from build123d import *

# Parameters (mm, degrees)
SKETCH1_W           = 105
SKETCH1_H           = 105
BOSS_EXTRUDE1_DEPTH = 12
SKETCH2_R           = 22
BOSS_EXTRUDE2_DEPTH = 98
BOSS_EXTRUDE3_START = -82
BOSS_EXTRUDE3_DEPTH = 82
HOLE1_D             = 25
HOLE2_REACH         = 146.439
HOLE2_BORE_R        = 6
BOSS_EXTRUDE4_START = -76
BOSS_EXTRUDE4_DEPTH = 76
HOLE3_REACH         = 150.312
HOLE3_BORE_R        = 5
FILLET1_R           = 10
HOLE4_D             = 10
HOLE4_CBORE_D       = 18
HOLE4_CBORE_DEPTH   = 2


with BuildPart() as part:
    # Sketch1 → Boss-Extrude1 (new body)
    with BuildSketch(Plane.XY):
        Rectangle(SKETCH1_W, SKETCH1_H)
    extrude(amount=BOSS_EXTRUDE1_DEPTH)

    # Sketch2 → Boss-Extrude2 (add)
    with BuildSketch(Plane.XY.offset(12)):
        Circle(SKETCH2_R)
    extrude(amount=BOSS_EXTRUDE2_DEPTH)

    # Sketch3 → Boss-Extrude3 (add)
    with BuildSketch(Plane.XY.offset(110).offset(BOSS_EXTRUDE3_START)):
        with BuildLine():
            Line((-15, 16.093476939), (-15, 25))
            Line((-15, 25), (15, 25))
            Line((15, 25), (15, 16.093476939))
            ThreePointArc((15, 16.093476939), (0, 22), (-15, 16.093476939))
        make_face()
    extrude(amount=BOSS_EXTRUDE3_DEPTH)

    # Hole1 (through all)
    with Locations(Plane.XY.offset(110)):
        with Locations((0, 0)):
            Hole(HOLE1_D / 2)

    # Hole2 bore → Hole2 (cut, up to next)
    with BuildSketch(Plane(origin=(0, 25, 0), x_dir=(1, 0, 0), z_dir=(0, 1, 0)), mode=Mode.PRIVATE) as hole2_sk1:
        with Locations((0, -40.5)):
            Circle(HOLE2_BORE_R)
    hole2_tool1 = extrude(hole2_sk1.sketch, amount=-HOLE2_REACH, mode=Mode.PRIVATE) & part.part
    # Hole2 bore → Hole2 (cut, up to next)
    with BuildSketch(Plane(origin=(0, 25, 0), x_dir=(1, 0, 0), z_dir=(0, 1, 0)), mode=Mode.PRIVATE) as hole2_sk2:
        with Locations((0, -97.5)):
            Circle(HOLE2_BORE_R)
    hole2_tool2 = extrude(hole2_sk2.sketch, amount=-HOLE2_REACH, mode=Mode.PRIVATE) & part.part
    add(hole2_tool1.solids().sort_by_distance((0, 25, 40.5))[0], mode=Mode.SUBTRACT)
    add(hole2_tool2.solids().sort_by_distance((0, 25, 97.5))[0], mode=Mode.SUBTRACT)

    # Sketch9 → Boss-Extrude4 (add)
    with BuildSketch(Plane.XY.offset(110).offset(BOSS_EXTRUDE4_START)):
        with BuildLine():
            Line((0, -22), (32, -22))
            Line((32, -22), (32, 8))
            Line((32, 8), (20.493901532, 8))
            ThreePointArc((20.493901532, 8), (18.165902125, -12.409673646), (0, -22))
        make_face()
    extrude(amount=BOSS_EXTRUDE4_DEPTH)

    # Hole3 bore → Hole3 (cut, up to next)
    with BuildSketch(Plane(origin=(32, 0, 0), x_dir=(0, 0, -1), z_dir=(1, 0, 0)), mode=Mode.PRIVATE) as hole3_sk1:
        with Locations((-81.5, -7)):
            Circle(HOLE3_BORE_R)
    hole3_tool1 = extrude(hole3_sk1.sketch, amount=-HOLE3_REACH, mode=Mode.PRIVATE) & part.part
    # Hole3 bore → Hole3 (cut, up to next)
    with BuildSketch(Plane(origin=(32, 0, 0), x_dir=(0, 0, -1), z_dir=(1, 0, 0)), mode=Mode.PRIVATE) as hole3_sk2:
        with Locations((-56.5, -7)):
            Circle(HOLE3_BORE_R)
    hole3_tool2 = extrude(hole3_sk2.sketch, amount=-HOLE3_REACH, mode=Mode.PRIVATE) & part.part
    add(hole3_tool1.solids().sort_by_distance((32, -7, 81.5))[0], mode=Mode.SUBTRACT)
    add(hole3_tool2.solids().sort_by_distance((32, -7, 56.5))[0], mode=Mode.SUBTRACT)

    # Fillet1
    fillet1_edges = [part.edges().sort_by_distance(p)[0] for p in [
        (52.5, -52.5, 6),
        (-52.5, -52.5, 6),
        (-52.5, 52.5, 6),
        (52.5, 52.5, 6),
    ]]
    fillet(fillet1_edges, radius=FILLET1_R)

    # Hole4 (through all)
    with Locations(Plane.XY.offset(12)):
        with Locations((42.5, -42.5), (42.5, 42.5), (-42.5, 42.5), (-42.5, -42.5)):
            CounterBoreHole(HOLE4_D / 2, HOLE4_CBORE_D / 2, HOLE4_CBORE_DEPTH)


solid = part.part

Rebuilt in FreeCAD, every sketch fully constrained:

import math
import FreeCAD as App
import Part
import Sketcher

V = App.Vector


def edges_at(feature, points):
    """Names of the edges that pass closest to the given points."""
    edges = feature.Shape.Edges
    near = lambda p: min(range(len(edges)), key=lambda i: edges[i].distToShape(Part.Vertex(*p))[0])
    return sorted({f"Edge{near(p) + 1}" for p in points})


def add_polygon(sketch, points):
    """Adds a closed chain of lines whose ends are joined by coincident constraints."""
    first, n = sketch.GeometryCount, len(points)
    for a, b in zip(points, points[1:] + points[:1]):
        sketch.addGeometry(Part.LineSegment(App.Vector(*a, 0), App.Vector(*b, 0)), False)
    for i in range(n):
        sketch.addConstraint(Sketcher.Constraint("Coincident", first + i, 2, first + (i + 1) % n, 1))

doc = App.newDocument("Part")
params = doc.addObject("Spreadsheet::Sheet", "Params")
for row, (alias, value) in enumerate([
    ("sketch1_width", "105 mm"),
    ("pad1_length", "12 mm"),
    ("sketch2_diameter", "44 mm"),
    ("pad2_length", "98 mm"),
    ("sketch3_radius", "22 mm"),
    ("sketch3_width", "30 mm"),
    ("pad3_length", "82 mm"),
    ("sketch4_diameter", "25 mm"),
    ("hole_diameter", "25 mm"),
    ("sketch5_diameter", "12 mm"),
    ("sketch6_diameter", "12 mm"),
    ("sketch7_radius", "22 mm"),
    ("sketch7_width", "32 mm"),
    ("sketch7_height", "30 mm"),
    ("pad4_length", "76 mm"),
    ("sketch8_diameter", "10 mm"),
    ("sketch9_diameter", "10 mm"),
    ("fillet_radius", "10 mm"),
    ("sketch10_diameter", "10 mm"),
    ("hole2_diameter", "10 mm"),
    ("hole2_cbore_diameter", "18 mm"),
    ("hole2_cbore_depth", "2 mm"),
], start=1):
    params.set(f"A{row}", alias)
    params.set(f"B{row}", "=" + value)
    params.setAlias(f"B{row}", alias)

body = doc.addObject("PartDesign::Body", "Body")

# Sketch on XY plane
sketch1 = body.newObject("Sketcher::SketchObject", "Sketch")
sketch1.AttachmentSupport = (doc.getObject("XY_Plane"), [""])
sketch1.MapMode = "FlatFace"
add_polygon(sketch1, [(-52.5, 52.5), (-52.5, -52.5), (52.5, -52.5), (52.5, 52.5)])  # lines 0-3
sketch1.addConstraint(Sketcher.Constraint("Vertical", 0))
sketch1.addConstraint(Sketcher.Constraint("Horizontal", 1))
sketch1.addConstraint(Sketcher.Constraint("Vertical", 2))
sketch1.addConstraint(Sketcher.Constraint("Horizontal", 3))
sketch1.addConstraint(Sketcher.Constraint("Symmetric", 0, 2, 2, 2, -1, 1))
sketch1.addConstraint(Sketcher.Constraint("Equal", 3, 0))
sketch1.addConstraint(Sketcher.Constraint("DistanceX", 1, 1, 1, 2, 105.0))
sketch1.setExpression("Constraints[10]", "Params.sketch1_width")
pad1 = body.newObject("PartDesign::Pad", "Pad")
pad1.Profile = sketch1
pad1.setExpression("Length", "Params.pad1_length")

# Sketch on XY plane
sketch2 = body.newObject("Sketcher::SketchObject", "Sketch001")
sketch2.AttachmentSupport = (doc.getObject("XY_Plane"), [""])
sketch2.MapMode = "FlatFace"
sketch2.AttachmentOffset = App.Placement(V(0, 0, 12), App.Rotation())
sketch2.addGeometry(Part.Circle(V(0, 0, 0), V(0, 0, 1), 22), False)
sketch2.addConstraint(Sketcher.Constraint("Coincident", 0, 3, -1, 1))
sketch2.addConstraint(Sketcher.Constraint("Diameter", 0, 44.0))
sketch2.setExpression("Constraints[1]", "Params.sketch2_diameter")
pad2 = body.newObject("PartDesign::Pad", "Pad001")
pad2.Profile = sketch2
pad2.setExpression("Length", "Params.pad2_length")

# Sketch on XY plane
sketch3 = body.newObject("Sketcher::SketchObject", "Sketch002")
sketch3.AttachmentSupport = (doc.getObject("XY_Plane"), [""])
sketch3.MapMode = "FlatFace"
sketch3.AttachmentOffset = App.Placement(V(0, 0, 28), App.Rotation())
sketch3.addGeometry(Part.LineSegment(V(-15, 25, 0), V(-15, 16.093477, 0)), False)
sketch3.addGeometry(Part.ArcOfCircle(Part.Circle(V(0, 0, 0), V(0, 0, 1), 22), math.radians(47.014114), math.radians(132.985886)), False)
sketch3.addGeometry(Part.LineSegment(V(15, 16.093477, 0), V(15, 25, 0)), False)
sketch3.addGeometry(Part.LineSegment(V(15, 25, 0), V(-15, 25, 0)), False)
sketch3.addConstraint(Sketcher.Constraint("Coincident", 0, 2, 1, 2))
sketch3.addConstraint(Sketcher.Constraint("Coincident", 1, 1, 2, 1))
sketch3.addConstraint(Sketcher.Constraint("Coincident", 2, 2, 3, 1))
sketch3.addConstraint(Sketcher.Constraint("Coincident", 3, 2, 0, 1))
sketch3.addConstraint(Sketcher.Constraint("Vertical", 0))
sketch3.addConstraint(Sketcher.Constraint("Vertical", 2))
sketch3.addConstraint(Sketcher.Constraint("Horizontal", 3))
sketch3.addConstraint(Sketcher.Constraint("Coincident", 1, 3, -1, 1))
sketch3.addConstraint(Sketcher.Constraint("Horizontal", 0, 2, 1, 1))
sketch3.addConstraint(Sketcher.Constraint("Radius", 1, 22.0))
sketch3.addConstraint(Sketcher.Constraint("DistanceX", 3, 2, 3, 1, 30.0))
sketch3.addConstraint(Sketcher.Constraint("DistanceY", -1, 1, 2, 2, 25.0))
sketch3.setExpression("Constraints[9]", "Params.sketch3_radius")
sketch3.setExpression("Constraints[10]", "Params.sketch3_width")
pad3 = body.newObject("PartDesign::Pad", "Pad002")
pad3.Profile = sketch3
pad3.setExpression("Length", "Params.pad3_length")

# Sketch on XY plane
sketch4 = body.newObject("Sketcher::SketchObject", "Sketch003")
sketch4.AttachmentSupport = (doc.getObject("XY_Plane"), [""])
sketch4.MapMode = "FlatFace"
sketch4.AttachmentOffset = App.Placement(V(0, 0, 110), App.Rotation())
sketch4.addGeometry(Part.Circle(V(0, 0, 0), V(0, 0, 1), 12.5), False)
sketch4.addConstraint(Sketcher.Constraint("Coincident", 0, 3, -1, 1))
sketch4.addConstraint(Sketcher.Constraint("Diameter", 0, 25.0))
sketch4.setExpression("Constraints[1]", "Params.sketch4_diameter")
doc.recompute()
hole = body.newObject("PartDesign::Hole", "Hole")
hole.Profile = sketch4
hole.ThreadType = "None"
hole.setExpression("Diameter", "Params.hole_diameter")
hole.DepthType = "ThroughAll"

# Sketch on XZ plane
sketch5 = body.newObject("Sketcher::SketchObject", "Sketch004")
sketch5.AttachmentSupport = (doc.getObject("XZ_Plane"), [""])
sketch5.MapMode = "FlatFace"
sketch5.AttachmentOffset = App.Placement(V(0, 0, -25), App.Rotation())
sketch5.addGeometry(Part.Circle(V(0, 40.5, 0), V(0, 0, 1), 6), False)
sketch5.addConstraint(Sketcher.Constraint("PointOnObject", 0, 3, -2))
sketch5.addConstraint(Sketcher.Constraint("Diameter", 0, 12.0))
sketch5.addConstraint(Sketcher.Constraint("DistanceY", -1, 1, 0, 3, 40.5))
sketch5.setExpression("Constraints[1]", "Params.sketch5_diameter")
pocket1 = body.newObject("PartDesign::Pocket", "Pocket")
pocket1.Profile = sketch5
pocket1.Type = "UpToFirst"
pocket1.Reversed = True

# Sketch on XZ plane
sketch6 = body.newObject("Sketcher::SketchObject", "Sketch005")
sketch6.AttachmentSupport = (doc.getObject("XZ_Plane"), [""])
sketch6.MapMode = "FlatFace"
sketch6.AttachmentOffset = App.Placement(V(0, 0, -25), App.Rotation())
sketch6.addGeometry(Part.Circle(V(0, 97.5, 0), V(0, 0, 1), 6), False)
sketch6.addConstraint(Sketcher.Constraint("PointOnObject", 0, 3, -2))
sketch6.addConstraint(Sketcher.Constraint("Diameter", 0, 12.0))
sketch6.addConstraint(Sketcher.Constraint("DistanceY", -1, 1, 0, 3, 97.5))
sketch6.setExpression("Constraints[1]", "Params.sketch6_diameter")
pocket2 = body.newObject("PartDesign::Pocket", "Pocket001")
pocket2.Profile = sketch6
pocket2.Type = "UpToFirst"
pocket2.Reversed = True

# Sketch on XY plane
sketch7 = body.newObject("Sketcher::SketchObject", "Sketch006")
sketch7.AttachmentSupport = (doc.getObject("XY_Plane"), [""])
sketch7.MapMode = "FlatFace"
sketch7.AttachmentOffset = App.Placement(V(0, 0, 34), App.Rotation())
sketch7.addGeometry(Part.LineSegment(V(0, -22, 0), V(32, -22, 0)), False)
sketch7.addGeometry(Part.LineSegment(V(32, -22, 0), V(32, 8, 0)), False)
sketch7.addGeometry(Part.LineSegment(V(32, 8, 0), V(20.493902, 8, 0)), False)
sketch7.addGeometry(Part.ArcOfCircle(Part.Circle(V(0, 0, 0), V(0, 0, 1), 22), math.radians(-90), math.radians(21.323686)), False)
sketch7.addConstraint(Sketcher.Constraint("Coincident", 0, 2, 1, 1))
sketch7.addConstraint(Sketcher.Constraint("Coincident", 1, 2, 2, 1))
sketch7.addConstraint(Sketcher.Constraint("Coincident", 2, 2, 3, 2))
sketch7.addConstraint(Sketcher.Constraint("Tangent", 3, 1, 0, 1))
sketch7.addConstraint(Sketcher.Constraint("Horizontal", 0))
sketch7.addConstraint(Sketcher.Constraint("Vertical", 1))
sketch7.addConstraint(Sketcher.Constraint("Horizontal", 2))
sketch7.addConstraint(Sketcher.Constraint("Coincident", 3, 3, -1, 1))
sketch7.addConstraint(Sketcher.Constraint("Radius", 3, 22.0))
sketch7.addConstraint(Sketcher.Constraint("DistanceX", 0, 1, 0, 2, 32.0))
sketch7.addConstraint(Sketcher.Constraint("DistanceY", 1, 1, 1, 2, 30.0))
sketch7.setExpression("Constraints[8]", "Params.sketch7_radius")
sketch7.setExpression("Constraints[9]", "Params.sketch7_width")
sketch7.setExpression("Constraints[10]", "Params.sketch7_height")
pad4 = body.newObject("PartDesign::Pad", "Pad003")
pad4.Profile = sketch7
pad4.setExpression("Length", "Params.pad4_length")

# Sketch on YZ plane
sketch8 = body.newObject("Sketcher::SketchObject", "Sketch007")
sketch8.AttachmentSupport = (doc.getObject("YZ_Plane"), [""])
sketch8.MapMode = "FlatFace"
sketch8.AttachmentOffset = App.Placement(V(0, 0, 32), App.Rotation())
sketch8.addGeometry(Part.Circle(V(-7, 81.5, 0), V(0, 0, 1), 5), False)
sketch8.addConstraint(Sketcher.Constraint("Diameter", 0, 10.0))
sketch8.addConstraint(Sketcher.Constraint("DistanceX", 0, 3, -1, 1, 7.0))
sketch8.addConstraint(Sketcher.Constraint("DistanceY", -1, 1, 0, 3, 81.5))
sketch8.setExpression("Constraints[0]", "Params.sketch8_diameter")
pocket3 = body.newObject("PartDesign::Pocket", "Pocket002")
pocket3.Profile = sketch8
pocket3.Type = "UpToFirst"

# Sketch on YZ plane
sketch9 = body.newObject("Sketcher::SketchObject", "Sketch008")
sketch9.AttachmentSupport = (doc.getObject("YZ_Plane"), [""])
sketch9.MapMode = "FlatFace"
sketch9.AttachmentOffset = App.Placement(V(0, 0, 32), App.Rotation())
sketch9.addGeometry(Part.Circle(V(-7, 56.5, 0), V(0, 0, 1), 5), False)
sketch9.addConstraint(Sketcher.Constraint("Diameter", 0, 10.0))
sketch9.addConstraint(Sketcher.Constraint("DistanceX", 0, 3, -1, 1, 7.0))
sketch9.addConstraint(Sketcher.Constraint("DistanceY", -1, 1, 0, 3, 56.5))
sketch9.setExpression("Constraints[0]", "Params.sketch9_diameter")
pocket4 = body.newObject("PartDesign::Pocket", "Pocket003")
pocket4.Profile = sketch9
pocket4.Type = "UpToFirst"
doc.recompute()

fillet = body.newObject("PartDesign::Fillet", "Fillet")
fillet.Base = (pocket4, edges_at(pocket4, [
    (52.5, -52.5, 6),
    (-52.5, -52.5, 6),
    (-52.5, 52.5, 6),
    (52.5, 52.5, 6),
]))
fillet.setExpression("Radius", "Params.fillet_radius")

# Sketch on XY plane
sketch10 = body.newObject("Sketcher::SketchObject", "Sketch009")
sketch10.AttachmentSupport = (doc.getObject("XY_Plane"), [""])
sketch10.MapMode = "FlatFace"
sketch10.AttachmentOffset = App.Placement(V(0, 0, 12), App.Rotation())
sketch10.addGeometry(Part.Circle(V(42.5, -42.5, 0), V(0, 0, 1), 5), False)
sketch10.addGeometry(Part.Circle(V(42.5, 42.5, 0), V(0, 0, 1), 5), False)
sketch10.addGeometry(Part.Circle(V(-42.5, 42.5, 0), V(0, 0, 1), 5), False)
sketch10.addGeometry(Part.Circle(V(-42.5, -42.5, 0), V(0, 0, 1), 5), False)
sketch10.addConstraint(Sketcher.Constraint("Equal", 0, 1))
sketch10.addConstraint(Sketcher.Constraint("Equal", 1, 2))
sketch10.addConstraint(Sketcher.Constraint("Equal", 2, 3))
sketch10.addConstraint(Sketcher.Constraint("Symmetric", 0, 3, 2, 3, -1, 1))
sketch10.addConstraint(Sketcher.Constraint("Symmetric", 1, 3, 3, 3, -1, 1))
sketch10.addConstraint(Sketcher.Constraint("Symmetric", 1, 3, 2, 3, -2))
sketch10.addConstraint(Sketcher.Constraint("Diameter", 0, 10.0))
sketch10.addConstraint(Sketcher.Constraint("DistanceY", 0, 3, 1, 3, 85.0))
sketch10.addConstraint(Sketcher.Constraint("DistanceX", 2, 3, 1, 3, 85.0))
sketch10.setExpression("Constraints[6]", "Params.sketch10_diameter")
doc.recompute()
hole2 = body.newObject("PartDesign::Hole", "Hole001")
hole2.Profile = sketch10
hole2.ThreadType = "None"
hole2.setExpression("Diameter", "Params.hole2_diameter")
hole2.DepthType = "ThroughAll"
hole2.HoleCutType = "Counterbore"
hole2.setExpression("HoleCutDiameter", "Params.hole2_cbore_diameter")
hole2.setExpression("HoleCutDepth", "Params.hole2_cbore_depth")

doc.recompute()
